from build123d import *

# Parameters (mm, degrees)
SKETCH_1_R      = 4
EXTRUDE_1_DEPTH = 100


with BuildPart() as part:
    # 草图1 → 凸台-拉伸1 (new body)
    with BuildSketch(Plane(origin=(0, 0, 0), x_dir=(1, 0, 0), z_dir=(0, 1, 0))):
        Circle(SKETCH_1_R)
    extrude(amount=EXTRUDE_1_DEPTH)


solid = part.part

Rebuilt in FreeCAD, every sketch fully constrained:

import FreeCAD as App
import Part
import Sketcher

V = App.Vector

doc = App.newDocument("Part")
body = doc.addObject("PartDesign::Body", "Body")

# Sketch on XZ plane
sketch1 = body.newObject("Sketcher::SketchObject", "Sketch")
sketch1.AttachmentSupport = (doc.getObject("XZ_Plane"), [""])
sketch1.MapMode = "FlatFace"
sketch1.addGeometry(Part.Circle(V(0, 0, 0), V(0, 0, 1), 4), False)
sketch1.addConstraint([
    Sketcher.Constraint("Coincident", 0, 3, -1, 1),
    Sketcher.Constraint("Diameter", 0, 8.0),
])
pad1 = body.newObject("PartDesign::Pad", "Pad")
pad1.Profile = sketch1
pad1.Length = 100
pad1.Reversed = True

doc.recompute()
